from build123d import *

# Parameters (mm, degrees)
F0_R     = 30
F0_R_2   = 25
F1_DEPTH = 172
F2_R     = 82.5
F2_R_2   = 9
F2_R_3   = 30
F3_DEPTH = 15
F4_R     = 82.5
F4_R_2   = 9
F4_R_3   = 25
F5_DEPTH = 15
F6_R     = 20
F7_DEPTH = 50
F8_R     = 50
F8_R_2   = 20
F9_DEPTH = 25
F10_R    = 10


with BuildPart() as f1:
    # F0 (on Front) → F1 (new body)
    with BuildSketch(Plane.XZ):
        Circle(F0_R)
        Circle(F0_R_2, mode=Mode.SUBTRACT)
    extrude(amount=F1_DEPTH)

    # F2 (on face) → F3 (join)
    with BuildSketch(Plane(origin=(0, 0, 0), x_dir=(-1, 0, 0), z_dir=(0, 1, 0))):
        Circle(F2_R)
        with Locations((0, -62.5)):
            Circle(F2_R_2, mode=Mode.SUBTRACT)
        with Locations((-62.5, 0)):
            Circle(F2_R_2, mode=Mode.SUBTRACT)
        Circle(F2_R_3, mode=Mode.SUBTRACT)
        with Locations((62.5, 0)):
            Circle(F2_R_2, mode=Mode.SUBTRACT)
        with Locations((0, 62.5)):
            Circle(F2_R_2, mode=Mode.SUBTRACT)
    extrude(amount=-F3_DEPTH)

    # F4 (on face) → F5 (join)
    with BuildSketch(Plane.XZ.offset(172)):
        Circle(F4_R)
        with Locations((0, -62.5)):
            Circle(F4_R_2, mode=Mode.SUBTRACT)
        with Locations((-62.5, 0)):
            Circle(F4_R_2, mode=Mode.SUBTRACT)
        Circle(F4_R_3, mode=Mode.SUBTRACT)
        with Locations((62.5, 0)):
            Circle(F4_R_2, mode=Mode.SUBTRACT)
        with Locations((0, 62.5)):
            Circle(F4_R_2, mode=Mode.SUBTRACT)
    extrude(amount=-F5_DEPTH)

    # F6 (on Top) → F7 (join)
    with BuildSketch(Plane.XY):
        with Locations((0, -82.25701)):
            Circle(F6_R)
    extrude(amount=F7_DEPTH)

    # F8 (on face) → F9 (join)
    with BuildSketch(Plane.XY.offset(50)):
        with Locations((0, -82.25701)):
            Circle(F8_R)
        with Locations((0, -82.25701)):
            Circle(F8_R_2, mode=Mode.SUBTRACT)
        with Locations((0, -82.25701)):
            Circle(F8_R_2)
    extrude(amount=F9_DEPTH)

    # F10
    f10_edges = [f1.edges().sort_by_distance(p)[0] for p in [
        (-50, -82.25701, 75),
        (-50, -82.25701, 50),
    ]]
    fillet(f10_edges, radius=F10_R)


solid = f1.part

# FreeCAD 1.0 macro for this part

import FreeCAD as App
import Part
import Sketcher
from FreeCAD import Vector
Q = App.Units.Quantity


def edges_at(feature, points):
    """Names of the edges that pass closest to the given points."""
    edges = feature.Shape.Edges
    near = lambda p: min(range(len(edges)), key=lambda i: edges[i].distToShape(Part.Vertex(*p))[0])
    return sorted({f"Edge{near(p) + 1}" for p in points})

doc = App.newDocument("Part")
body = doc.addObject("PartDesign::Body", "Body")

# Sketch on XZ plane
sketch1 = doc.addObject("Sketcher::SketchObject", "Sketch")
body.addObject(sketch1)
sketch1.AttachmentSupport = (doc.XZ_Plane, [""])
sketch1.MapMode = "FlatFace"
sketch1.addGeometry([
    Part.Circle(Vector(0, 0, 0), Vector(0, 0, 1), 30),
    Part.Circle(Vector(0, 0, 0), Vector(0, 0, 1), 25),
], False)
sketch1.addConstraint([
    Sketcher.Constraint("Coincident", 0, 3, -1, 1),
    Sketcher.Constraint("Coincident", 1, 3, -1, 1),
    Sketcher.Constraint("Diameter", 0, Q("60 mm")),
    Sketcher.Constraint("Diameter", 1, Q("50 mm")),
])
pad1 = doc.addObject("PartDesign::Pad", "Pad")
body.addObject(pad1)
pad1.Profile = sketch1
pad1.Length = 172

# Sketch on XZ plane
sketch2 = doc.addObject("Sketcher::SketchObject", "Sketch001")
body.addObject(sketch2)
sketch2.AttachmentSupport = (doc.XZ_Plane, [""])
sketch2.MapMode = "FlatFace"
sketch2.addGeometry([
    Part.Circle(Vector(0, 0, 0), Vector(0, 0, 1), 82),  # 0
    Part.Circle(Vector(0, -62, 0), Vector(0, 0, 1), 9),  # 1
    Part.Circle(Vector(62, 0, 0), Vector(0, 0, 1), 9),  # 2
    Part.Circle(Vector(0, 0, 0), Vector(0, 0, 1), 30),  # 3
    Part.Circle(Vector(-62, 0, 0), Vector(0, 0, 1), 9),  # 4
    Part.Circle(Vector(0, 62, 0), Vector(0, 0, 1), 9),  # 5
], False)
sketch2.addConstraint([
    Sketcher.Constraint("Coincident", 0, 3, -1, 1),
    Sketcher.Constraint("Coincident", 3, 3, -1, 1),
    Sketcher.Constraint("Equal", 1, 2),
    Sketcher.Constraint("Equal", 2, 4),
    Sketcher.Constraint("Equal", 4, 5),
    Sketcher.Constraint("Symmetric", 2, 3, 4, 3, -1, 1),
    Sketcher.Constraint("Symmetric", 1, 3, 5, 3, -1, 1),
    Sketcher.Constraint("PointOnObject", 1, 3, -2),
    Sketcher.Constraint("PointOnObject", 2, 3, -1),
    Sketcher.Constraint("Diameter", 0, Q("165 mm")),
    Sketcher.Constraint("Diameter", 1, Q("18 mm")),
    Sketcher.Constraint("Diameter", 3, Q("60 mm")),
    Sketcher.Constraint("DistanceX", 4, 3, 2, 3, Q("125 mm")),
    Sketcher.Constraint("DistanceY", 1, 3, 5, 3, Q("125 mm")),
])
pad2 = doc.addObject("PartDesign::Pad", "Pad001")
body.addObject(pad2)
pad2.Profile = sketch2
pad2.Length = 15

# Sketch on XZ plane
sketch3 = doc.addObject("Sketcher::SketchObject", "Sketch002")
body.addObject(sketch3)
sketch3.AttachmentSupport = (doc.XZ_Plane, [""])
sketch3.MapMode = "FlatFace"
sketch3.AttachmentOffset = App.Placement(Vector(0, 0, 172), App.Rotation())
sketch3.addGeometry([
    Part.Circle(Vector(0, 0, 0), Vector(0, 0, 1), 82),  # 0
    Part.Circle(Vector(0, -62, 0), Vector(0, 0, 1), 9),  # 1
    Part.Circle(Vector(-62, 0, 0), Vector(0, 0, 1), 9),  # 2
    Part.Circle(Vector(0, 0, 0), Vector(0, 0, 1), 25),  # 3
    Part.Circle(Vector(62, 0, 0), Vector(0, 0, 1), 9),  # 4
    Part.Circle(Vector(0, 62, 0), Vector(0, 0, 1), 9),  # 5
], False)
sketch3.addConstraint([
    Sketcher.Constraint("Coincident", 0, 3, -1, 1),
    Sketcher.Constraint("Coincident", 3, 3, -1, 1),
    Sketcher.Constraint("Equal", 1, 2),
    Sketcher.Constraint("Equal", 2, 4),
    Sketcher.Constraint("Equal", 4, 5),
    Sketcher.Constraint("Symmetric", 2, 3, 4, 3, -1, 1),
    Sketcher.Constraint("Symmetric", 1, 3, 5, 3, -1, 1),
    Sketcher.Constraint("PointOnObject", 1, 3, -2),
    Sketcher.Constraint("PointOnObject", 2, 3, -1),
    Sketcher.Constraint("Diameter", 0, Q("165 mm")),
    Sketcher.Constraint("Diameter", 1, Q("18 mm")),
    Sketcher.Constraint("Diameter", 3, Q("50 mm")),
    Sketcher.Constraint("DistanceX", 2, 3, 4, 3, Q("125 mm")),
    Sketcher.Constraint("DistanceY", 1, 3, 5, 3, Q("125 mm")),
])
pad3 = doc.addObject("PartDesign::Pad", "Pad002")
body.addObject(pad3)
pad3.Profile = sketch3
pad3.Length = 15
pad3.Reversed = True

# Sketch on XY plane
sketch4 = doc.addObject("Sketcher::SketchObject", "Sketch003")
body.addObject(sketch4)
sketch4.AttachmentSupport = (doc.XY_Plane, [""])
sketch4.MapMode = "FlatFace"
sketch4.addGeometry(Part.Circle(Vector(0, -82, 0), Vector(0, 0, 1), 20), False)
sketch4.addConstraint([
    Sketcher.Constraint("PointOnObject", 0, 3, -2),
    Sketcher.Constraint("Diameter", 0, Q("40 mm")),
    Sketcher.Constraint("DistanceY", 0, 3, -1, 1, Q("82.25701 mm")),
])
pad4 = doc.addObject("PartDesign::Pad", "Pad003")
body.addObject(pad4)
pad4.Profile = sketch4
pad4.Length = 50

# Sketch on XY plane
sketch5 = doc.addObject("Sketcher::SketchObject", "Sketch004")
body.addObject(sketch5)
sketch5.AttachmentSupport = (doc.XY_Plane, [""])
sketch5.MapMode = "FlatFace"
sketch5.AttachmentOffset = App.Placement(Vector(0, 0, 50), App.Rotation())
sketch5.addGeometry(Part.Circle(Vector(0, -82, 0), Vector(0, 0, 1), 50), False)
sketch5.addConstraint([
    Sketcher.Constraint("PointOnObject", 0, 3, -2),
    Sketcher.Constraint("Diameter", 0, Q("100 mm")),
    Sketcher.Constraint("DistanceY", 0, 3, -1, 1, Q("82.25701 mm")),
])
pad5 = doc.addObject("PartDesign::Pad", "Pad004")
body.addObject(pad5)
pad5.Profile = sketch5
pad5.Length = 25
doc.recompute()

fillet = doc.addObject("PartDesign::Fillet", "Fillet")
body.addObject(fillet)
fillet.Base = (pad5, edges_at(pad5, [(-50, -82.257, 75), (-50, -82.257, 50)]))
fillet.Radius = 10

doc.recompute()
